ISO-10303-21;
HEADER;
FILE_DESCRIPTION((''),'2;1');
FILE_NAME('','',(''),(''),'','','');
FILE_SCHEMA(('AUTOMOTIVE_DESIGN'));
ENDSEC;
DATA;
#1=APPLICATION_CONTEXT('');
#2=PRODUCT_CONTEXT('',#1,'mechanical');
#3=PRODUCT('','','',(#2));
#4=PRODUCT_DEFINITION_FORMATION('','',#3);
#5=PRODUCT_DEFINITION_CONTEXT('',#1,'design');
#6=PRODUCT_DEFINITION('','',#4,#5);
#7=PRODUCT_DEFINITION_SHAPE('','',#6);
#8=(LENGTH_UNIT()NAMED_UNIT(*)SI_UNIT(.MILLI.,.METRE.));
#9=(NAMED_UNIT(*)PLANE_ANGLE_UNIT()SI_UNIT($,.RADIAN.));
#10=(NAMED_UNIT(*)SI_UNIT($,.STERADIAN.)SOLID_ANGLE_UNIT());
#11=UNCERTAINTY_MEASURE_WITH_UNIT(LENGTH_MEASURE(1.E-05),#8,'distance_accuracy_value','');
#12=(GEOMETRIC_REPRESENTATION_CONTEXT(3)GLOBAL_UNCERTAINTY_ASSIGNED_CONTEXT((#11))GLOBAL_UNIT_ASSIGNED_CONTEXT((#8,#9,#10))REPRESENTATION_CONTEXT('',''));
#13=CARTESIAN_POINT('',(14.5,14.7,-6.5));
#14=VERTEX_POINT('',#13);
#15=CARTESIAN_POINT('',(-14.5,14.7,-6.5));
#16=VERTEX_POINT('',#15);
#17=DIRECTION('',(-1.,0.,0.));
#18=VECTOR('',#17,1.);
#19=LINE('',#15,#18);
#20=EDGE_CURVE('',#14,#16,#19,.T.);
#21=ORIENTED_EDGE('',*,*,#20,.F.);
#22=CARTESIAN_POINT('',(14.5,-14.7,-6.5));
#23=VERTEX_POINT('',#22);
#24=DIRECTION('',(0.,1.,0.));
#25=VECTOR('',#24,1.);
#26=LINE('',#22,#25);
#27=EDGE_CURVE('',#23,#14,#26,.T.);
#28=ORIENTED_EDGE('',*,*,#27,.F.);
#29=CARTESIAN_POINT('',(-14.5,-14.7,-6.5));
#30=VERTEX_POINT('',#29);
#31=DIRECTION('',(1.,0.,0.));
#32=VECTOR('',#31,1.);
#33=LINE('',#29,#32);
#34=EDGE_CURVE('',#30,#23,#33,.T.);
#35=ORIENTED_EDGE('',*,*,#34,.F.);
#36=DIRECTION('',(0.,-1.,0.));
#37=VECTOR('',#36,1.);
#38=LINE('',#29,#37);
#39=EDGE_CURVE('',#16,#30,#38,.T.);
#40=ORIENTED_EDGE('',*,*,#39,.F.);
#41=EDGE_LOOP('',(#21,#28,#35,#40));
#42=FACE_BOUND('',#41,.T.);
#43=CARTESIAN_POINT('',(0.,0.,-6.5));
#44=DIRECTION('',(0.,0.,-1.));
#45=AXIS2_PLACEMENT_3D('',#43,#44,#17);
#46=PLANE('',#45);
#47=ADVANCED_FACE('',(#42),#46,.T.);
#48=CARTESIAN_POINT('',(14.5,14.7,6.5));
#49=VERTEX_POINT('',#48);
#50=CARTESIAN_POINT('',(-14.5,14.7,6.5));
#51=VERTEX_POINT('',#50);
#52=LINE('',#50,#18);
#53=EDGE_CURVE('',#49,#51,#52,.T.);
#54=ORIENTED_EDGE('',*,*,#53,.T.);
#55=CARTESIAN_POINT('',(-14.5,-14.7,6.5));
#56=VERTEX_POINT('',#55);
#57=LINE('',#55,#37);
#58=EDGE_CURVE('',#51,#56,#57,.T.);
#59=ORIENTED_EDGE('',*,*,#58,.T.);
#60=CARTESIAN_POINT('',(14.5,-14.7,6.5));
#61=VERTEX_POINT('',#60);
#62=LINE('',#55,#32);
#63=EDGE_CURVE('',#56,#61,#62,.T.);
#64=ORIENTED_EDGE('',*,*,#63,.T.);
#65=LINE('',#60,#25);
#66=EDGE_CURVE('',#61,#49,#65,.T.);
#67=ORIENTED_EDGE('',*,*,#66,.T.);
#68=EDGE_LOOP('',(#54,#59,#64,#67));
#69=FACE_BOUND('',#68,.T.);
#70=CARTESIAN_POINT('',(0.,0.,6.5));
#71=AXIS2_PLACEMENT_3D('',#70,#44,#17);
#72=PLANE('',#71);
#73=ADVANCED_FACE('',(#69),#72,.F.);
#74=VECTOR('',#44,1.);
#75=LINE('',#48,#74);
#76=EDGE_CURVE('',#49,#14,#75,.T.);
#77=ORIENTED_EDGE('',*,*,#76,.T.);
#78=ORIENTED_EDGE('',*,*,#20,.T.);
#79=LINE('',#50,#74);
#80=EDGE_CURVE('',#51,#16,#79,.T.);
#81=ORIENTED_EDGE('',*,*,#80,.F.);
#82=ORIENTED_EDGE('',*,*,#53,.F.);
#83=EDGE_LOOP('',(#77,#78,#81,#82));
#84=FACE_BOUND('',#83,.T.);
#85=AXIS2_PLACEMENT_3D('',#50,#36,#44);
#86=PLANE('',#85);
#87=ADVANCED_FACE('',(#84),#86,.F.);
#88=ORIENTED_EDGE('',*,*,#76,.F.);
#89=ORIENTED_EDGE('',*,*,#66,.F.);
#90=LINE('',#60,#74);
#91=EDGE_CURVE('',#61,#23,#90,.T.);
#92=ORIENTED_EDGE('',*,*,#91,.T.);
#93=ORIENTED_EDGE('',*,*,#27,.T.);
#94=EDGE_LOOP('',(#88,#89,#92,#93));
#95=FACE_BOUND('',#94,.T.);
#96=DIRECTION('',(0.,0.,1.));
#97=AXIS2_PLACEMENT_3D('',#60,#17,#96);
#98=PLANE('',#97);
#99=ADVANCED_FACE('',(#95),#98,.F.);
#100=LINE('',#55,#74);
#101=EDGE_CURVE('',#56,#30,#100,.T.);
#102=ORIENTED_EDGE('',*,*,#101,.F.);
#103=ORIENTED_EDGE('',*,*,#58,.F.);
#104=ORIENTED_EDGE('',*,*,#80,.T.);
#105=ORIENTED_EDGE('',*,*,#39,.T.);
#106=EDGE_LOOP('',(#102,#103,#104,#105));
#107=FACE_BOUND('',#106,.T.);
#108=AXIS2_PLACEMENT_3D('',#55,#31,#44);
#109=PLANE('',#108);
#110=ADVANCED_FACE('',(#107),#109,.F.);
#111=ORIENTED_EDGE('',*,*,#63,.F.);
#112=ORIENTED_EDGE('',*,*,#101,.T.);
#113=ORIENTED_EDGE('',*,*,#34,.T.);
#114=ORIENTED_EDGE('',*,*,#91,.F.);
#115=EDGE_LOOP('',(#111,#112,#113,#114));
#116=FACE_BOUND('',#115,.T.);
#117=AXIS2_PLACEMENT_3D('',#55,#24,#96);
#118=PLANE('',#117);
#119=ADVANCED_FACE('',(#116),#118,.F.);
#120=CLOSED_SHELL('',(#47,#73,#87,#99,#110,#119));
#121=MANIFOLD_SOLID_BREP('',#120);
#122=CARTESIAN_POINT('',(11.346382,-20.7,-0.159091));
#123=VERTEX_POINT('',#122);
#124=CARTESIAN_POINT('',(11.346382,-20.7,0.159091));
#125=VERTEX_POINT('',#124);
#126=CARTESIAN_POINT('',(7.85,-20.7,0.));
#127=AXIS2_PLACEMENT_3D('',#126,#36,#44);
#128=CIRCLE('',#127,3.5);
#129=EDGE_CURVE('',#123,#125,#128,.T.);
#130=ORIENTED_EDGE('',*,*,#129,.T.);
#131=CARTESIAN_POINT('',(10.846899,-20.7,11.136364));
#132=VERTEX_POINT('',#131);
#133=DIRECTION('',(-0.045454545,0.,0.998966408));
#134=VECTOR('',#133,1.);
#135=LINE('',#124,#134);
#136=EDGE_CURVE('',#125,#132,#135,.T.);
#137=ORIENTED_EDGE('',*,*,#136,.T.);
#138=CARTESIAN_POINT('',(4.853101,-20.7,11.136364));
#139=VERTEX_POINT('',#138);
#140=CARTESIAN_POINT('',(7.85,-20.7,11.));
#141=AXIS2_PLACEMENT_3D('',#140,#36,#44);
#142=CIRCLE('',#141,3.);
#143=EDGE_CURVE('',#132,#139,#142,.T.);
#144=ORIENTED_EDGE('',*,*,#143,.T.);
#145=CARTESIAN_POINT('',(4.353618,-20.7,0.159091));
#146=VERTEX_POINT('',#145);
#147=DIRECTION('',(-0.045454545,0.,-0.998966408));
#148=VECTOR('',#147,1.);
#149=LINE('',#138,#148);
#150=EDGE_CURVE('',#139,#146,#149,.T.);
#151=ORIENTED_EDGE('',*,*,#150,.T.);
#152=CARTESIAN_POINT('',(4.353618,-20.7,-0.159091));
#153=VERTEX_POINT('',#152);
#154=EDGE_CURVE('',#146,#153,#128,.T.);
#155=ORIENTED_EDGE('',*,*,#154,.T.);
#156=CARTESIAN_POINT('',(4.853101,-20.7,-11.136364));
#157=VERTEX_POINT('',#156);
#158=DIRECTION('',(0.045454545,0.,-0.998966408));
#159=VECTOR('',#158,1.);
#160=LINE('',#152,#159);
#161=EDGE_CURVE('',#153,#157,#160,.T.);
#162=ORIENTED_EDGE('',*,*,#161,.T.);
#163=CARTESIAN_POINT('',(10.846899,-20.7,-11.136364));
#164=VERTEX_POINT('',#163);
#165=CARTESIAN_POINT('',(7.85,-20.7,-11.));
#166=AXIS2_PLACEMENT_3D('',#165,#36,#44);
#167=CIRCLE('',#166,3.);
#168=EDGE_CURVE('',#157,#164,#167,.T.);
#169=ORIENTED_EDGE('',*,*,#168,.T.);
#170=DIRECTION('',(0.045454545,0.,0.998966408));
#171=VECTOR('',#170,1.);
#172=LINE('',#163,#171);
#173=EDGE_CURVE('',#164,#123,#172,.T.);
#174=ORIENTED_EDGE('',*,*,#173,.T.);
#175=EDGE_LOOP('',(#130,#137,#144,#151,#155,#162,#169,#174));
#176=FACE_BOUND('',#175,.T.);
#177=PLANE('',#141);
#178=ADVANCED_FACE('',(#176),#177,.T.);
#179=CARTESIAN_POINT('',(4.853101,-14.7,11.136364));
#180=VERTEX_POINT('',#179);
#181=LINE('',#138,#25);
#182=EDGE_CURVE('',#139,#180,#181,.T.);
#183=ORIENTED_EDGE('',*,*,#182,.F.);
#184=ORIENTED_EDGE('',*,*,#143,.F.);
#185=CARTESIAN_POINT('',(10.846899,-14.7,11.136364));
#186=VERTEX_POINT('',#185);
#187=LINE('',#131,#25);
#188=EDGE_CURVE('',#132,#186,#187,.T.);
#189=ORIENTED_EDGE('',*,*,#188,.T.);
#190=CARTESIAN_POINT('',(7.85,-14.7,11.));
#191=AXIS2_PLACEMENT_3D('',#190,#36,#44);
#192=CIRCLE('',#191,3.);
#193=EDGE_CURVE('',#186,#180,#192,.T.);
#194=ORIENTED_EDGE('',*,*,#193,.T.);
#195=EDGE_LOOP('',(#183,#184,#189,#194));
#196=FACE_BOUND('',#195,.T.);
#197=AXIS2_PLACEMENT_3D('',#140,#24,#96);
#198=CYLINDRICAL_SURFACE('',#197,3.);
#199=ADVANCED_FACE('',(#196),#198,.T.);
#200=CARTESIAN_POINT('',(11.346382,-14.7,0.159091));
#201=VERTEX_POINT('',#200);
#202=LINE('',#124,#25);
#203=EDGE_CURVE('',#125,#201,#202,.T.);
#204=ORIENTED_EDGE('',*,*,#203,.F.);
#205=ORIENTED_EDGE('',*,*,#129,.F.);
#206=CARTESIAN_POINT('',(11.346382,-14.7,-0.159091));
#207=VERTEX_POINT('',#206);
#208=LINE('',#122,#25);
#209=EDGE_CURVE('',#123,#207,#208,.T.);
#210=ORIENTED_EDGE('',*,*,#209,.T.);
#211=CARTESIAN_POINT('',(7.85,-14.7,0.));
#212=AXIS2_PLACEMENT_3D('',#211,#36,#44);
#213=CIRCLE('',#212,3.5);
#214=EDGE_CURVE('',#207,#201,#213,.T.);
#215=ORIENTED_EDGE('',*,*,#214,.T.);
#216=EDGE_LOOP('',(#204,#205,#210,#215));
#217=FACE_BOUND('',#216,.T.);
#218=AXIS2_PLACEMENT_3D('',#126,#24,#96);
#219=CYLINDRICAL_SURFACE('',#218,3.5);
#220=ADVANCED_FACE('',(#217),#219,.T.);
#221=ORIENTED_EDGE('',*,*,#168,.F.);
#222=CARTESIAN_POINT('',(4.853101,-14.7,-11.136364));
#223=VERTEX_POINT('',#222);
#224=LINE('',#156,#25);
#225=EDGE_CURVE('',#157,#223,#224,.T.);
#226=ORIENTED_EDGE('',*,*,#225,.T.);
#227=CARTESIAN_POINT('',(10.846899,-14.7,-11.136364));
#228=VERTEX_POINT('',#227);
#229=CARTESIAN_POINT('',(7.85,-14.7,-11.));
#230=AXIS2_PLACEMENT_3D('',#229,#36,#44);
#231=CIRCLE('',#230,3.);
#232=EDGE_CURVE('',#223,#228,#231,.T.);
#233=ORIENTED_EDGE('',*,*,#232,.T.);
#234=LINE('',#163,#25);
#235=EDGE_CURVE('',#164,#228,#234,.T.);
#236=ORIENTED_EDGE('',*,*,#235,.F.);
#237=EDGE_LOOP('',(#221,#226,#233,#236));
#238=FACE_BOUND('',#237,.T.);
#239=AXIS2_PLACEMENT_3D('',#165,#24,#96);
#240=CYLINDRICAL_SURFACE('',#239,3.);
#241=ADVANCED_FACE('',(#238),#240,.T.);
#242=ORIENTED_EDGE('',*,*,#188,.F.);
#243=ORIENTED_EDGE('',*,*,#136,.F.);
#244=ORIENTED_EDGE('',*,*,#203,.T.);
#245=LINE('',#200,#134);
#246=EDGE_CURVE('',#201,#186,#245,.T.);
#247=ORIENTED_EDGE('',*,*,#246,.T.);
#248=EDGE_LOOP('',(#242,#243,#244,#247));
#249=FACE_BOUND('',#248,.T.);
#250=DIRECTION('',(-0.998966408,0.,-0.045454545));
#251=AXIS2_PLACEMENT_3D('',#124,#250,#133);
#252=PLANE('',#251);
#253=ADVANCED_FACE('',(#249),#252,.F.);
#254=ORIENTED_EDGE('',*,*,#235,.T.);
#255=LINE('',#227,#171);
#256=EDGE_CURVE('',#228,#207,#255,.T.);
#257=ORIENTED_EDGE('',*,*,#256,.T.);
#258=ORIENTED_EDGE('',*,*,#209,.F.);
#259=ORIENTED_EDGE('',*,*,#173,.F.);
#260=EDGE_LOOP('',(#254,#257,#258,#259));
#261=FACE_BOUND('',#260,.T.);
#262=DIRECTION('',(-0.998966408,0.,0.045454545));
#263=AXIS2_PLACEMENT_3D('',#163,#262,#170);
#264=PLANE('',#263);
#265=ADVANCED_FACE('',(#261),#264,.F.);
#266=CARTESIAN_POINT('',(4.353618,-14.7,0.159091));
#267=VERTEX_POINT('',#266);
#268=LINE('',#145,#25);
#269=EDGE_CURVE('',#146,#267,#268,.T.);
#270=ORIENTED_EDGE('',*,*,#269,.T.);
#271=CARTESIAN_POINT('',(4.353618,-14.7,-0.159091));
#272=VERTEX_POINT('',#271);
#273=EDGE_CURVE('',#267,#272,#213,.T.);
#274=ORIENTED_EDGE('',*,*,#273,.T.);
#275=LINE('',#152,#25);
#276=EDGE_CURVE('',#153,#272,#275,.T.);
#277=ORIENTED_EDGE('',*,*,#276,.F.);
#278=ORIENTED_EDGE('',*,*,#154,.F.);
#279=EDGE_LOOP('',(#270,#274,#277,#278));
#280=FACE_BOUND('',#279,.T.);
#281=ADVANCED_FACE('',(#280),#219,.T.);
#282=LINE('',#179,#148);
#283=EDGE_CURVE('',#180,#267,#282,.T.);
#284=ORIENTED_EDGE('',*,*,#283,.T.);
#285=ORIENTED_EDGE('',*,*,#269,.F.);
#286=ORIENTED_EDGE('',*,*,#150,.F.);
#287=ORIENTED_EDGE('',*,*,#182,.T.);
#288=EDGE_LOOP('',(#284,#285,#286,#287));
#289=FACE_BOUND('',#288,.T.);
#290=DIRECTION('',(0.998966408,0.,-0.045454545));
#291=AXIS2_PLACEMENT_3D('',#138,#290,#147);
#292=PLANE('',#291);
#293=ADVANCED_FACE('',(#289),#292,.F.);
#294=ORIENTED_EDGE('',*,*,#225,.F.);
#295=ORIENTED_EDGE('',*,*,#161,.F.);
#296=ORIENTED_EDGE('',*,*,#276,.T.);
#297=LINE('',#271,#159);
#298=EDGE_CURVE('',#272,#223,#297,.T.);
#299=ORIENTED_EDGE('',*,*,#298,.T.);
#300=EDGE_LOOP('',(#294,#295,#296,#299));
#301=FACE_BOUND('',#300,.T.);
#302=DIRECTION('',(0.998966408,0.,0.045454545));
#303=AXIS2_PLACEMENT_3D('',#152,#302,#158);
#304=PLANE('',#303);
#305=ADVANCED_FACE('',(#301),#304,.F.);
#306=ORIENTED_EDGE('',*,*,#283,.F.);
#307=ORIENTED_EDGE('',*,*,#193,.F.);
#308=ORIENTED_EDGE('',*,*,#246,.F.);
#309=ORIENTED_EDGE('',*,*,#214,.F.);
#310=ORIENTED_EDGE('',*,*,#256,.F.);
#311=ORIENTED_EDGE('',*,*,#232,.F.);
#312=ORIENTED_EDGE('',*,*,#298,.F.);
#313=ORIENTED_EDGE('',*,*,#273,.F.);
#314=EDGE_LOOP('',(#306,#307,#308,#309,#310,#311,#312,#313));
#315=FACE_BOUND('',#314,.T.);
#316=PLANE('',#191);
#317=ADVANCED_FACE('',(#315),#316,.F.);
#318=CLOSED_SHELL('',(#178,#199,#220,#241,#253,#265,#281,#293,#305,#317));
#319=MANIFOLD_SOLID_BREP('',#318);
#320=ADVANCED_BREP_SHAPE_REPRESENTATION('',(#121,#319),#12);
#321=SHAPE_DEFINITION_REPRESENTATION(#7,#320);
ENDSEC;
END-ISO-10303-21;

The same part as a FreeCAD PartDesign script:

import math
import FreeCAD as App
import Part
import Sketcher
from FreeCAD import Vector


def add_polygon(sketch, points):
    """Adds a closed chain of lines whose ends are joined by coincident constraints."""
    first, n = sketch.GeometryCount, len(points)
    for a, b in zip(points, points[1:] + points[:1]):
        sketch.addGeometry(Part.LineSegment(App.Vector(*a, 0), App.Vector(*b, 0)), False)
    for i in range(n):
        sketch.addConstraint(Sketcher.Constraint("Coincident", first + i, 2, first + (i + 1) % n, 1))

doc = App.newDocument("Part")
params = doc.addObject("Spreadsheet::Sheet", "Params")
for row, (alias, value) in enumerate([
    ("sketch1_width", "29 mm"),
    ("sketch1_height", "29.4 mm"),
    ("pad1_length", "13 mm"),
    ("sketch2_radius", "3 mm"),
    ("sketch2_radius2", "3.5 mm"),
    ("pad2_length", "6 mm"),
], start=1):
    params.set(f"A{row}", alias)
    params.set(f"B{row}", "=" + value)
    params.setAlias(f"B{row}", alias)

body = doc.addObject("PartDesign::Body", "Body")

# Sketch on XY plane
sketch1 = body.newObject("Sketcher::SketchObject", "Sketch")
sketch1.AttachmentSupport = (doc.getObject("XY_Plane"), [""])
sketch1.MapMode = "FlatFace"
add_polygon(sketch1, [(-14.5, 14.7), (-14.5, -14.7), (14.5, -14.7), (14.5, 14.7)])  # lines 0-3
sketch1.addConstraint([
    Sketcher.Constraint("Vertical", 0),
    Sketcher.Constraint("Horizontal", 1),
    Sketcher.Constraint("Vertical", 2),
    Sketcher.Constraint("Horizontal", 3),
    Sketcher.Constraint("Symmetric", 0, 2, 2, 2, -1, 1),
    Sketcher.Constraint("DistanceX", 1, 1, 1, 2, 29.0),
    Sketcher.Constraint("DistanceY", 0, 2, 0, 1, 29.4),
])
sketch1.setExpression("Constraints[9]", "Params.sketch1_width")
sketch1.setExpression("Constraints[10]", "Params.sketch1_height")
pad1 = body.newObject("PartDesign::Pad", "Pad")
pad1.Profile = sketch1
pad1.setExpression("Length", "Params.pad1_length")
pad1.Midplane = True
body2 = doc.addObject("PartDesign::Body", "Body001")

# Sketch on XZ plane
sketch2 = body2.newObject("Sketcher::SketchObject", "Sketch001")
sketch2.AttachmentSupport = (doc.getObject("XZ_Plane001"), [""])
sketch2.MapMode = "FlatFace"
sketch2.AttachmentOffset = App.Placement(Vector(0, 0, 14.7), App.Rotation())
sketch2.addGeometry([
    Part.LineSegment(Vector(4.353618, -0.159091, 0), Vector(4.853101, -11.136364, 0)),  # 0
    Part.ArcOfCircle(Part.Circle(Vector(7.85, -11, 0), Vector(0, 0, 1), 3), math.radians(-177.394749), math.radians(-2.605251)),  # 1
    Part.LineSegment(Vector(10.846899, -11.136364, 0), Vector(11.346382, -0.159091, 0)),  # 2
    Part.ArcOfCircle(Part.Circle(Vector(7.85, 0, 0), Vector(0, 0, 1), 3.5), math.radians(-2.605251), math.radians(2.605251)),  # 3
    Part.LineSegment(Vector(11.346382, 0.159091, 0), Vector(10.846899, 11.136364, 0)),  # 4
    Part.ArcOfCircle(Part.Circle(Vector(7.85, 11, 0), Vector(0, 0, 1), 3), math.radians(2.605251), math.radians(177.394749)),  # 5
    Part.LineSegment(Vector(4.853101, 11.136364, 0), Vector(4.353618, 0.159091, 0)),  # 6
    Part.ArcOfCircle(Part.Circle(Vector(7.85, 0, 0), Vector(0, 0, 1), 3.5), math.radians(177.394749), math.radians(182.605251)),  # 7
], False)
sketch2.addConstraint([
    Sketcher.Constraint("Tangent", 0, 2, 1, 1),
    Sketcher.Constraint("Tangent", 1, 2, 2, 1),
    Sketcher.Constraint("Tangent", 2, 2, 3, 1),
    Sketcher.Constraint("Tangent", 3, 2, 4, 1),
    Sketcher.Constraint("Tangent", 4, 2, 5, 1),
    Sketcher.Constraint("Tangent", 5, 2, 6, 1),
    Sketcher.Constraint("Tangent", 6, 2, 7, 1),
    Sketcher.Constraint("Tangent", 7, 2, 0, 1),
    Sketcher.Constraint("Coincident", 7, 3, 3, 3),
    Sketcher.Constraint("Equal", 1, 5),
    Sketcher.Constraint("Equal", 3, 7),
    Sketcher.Constraint("Symmetric", 1, 3, 5, 3, -1),
    Sketcher.Constraint("PointOnObject", 3, 3, -1),
    Sketcher.Constraint("Parallel", 0, 4),
    Sketcher.Constraint("Radius", 1, 3.0),
    Sketcher.Constraint("Radius", 3, 3.5),
    Sketcher.Constraint("DistanceY", 1, 3, -1, 1, 11.0),
    Sketcher.Constraint("DistanceX", -1, 1, 1, 3, 7.85),
])
sketch2.setExpression("Constraints[14]", "Params.sketch2_radius")
sketch2.setExpression("Constraints[15]", "Params.sketch2_radius2")
pad2 = body2.newObject("PartDesign::Pad", "Pad001")
pad2.Profile = sketch2
pad2.setExpression("Length", "Params.pad2_length")

doc.recompute()
